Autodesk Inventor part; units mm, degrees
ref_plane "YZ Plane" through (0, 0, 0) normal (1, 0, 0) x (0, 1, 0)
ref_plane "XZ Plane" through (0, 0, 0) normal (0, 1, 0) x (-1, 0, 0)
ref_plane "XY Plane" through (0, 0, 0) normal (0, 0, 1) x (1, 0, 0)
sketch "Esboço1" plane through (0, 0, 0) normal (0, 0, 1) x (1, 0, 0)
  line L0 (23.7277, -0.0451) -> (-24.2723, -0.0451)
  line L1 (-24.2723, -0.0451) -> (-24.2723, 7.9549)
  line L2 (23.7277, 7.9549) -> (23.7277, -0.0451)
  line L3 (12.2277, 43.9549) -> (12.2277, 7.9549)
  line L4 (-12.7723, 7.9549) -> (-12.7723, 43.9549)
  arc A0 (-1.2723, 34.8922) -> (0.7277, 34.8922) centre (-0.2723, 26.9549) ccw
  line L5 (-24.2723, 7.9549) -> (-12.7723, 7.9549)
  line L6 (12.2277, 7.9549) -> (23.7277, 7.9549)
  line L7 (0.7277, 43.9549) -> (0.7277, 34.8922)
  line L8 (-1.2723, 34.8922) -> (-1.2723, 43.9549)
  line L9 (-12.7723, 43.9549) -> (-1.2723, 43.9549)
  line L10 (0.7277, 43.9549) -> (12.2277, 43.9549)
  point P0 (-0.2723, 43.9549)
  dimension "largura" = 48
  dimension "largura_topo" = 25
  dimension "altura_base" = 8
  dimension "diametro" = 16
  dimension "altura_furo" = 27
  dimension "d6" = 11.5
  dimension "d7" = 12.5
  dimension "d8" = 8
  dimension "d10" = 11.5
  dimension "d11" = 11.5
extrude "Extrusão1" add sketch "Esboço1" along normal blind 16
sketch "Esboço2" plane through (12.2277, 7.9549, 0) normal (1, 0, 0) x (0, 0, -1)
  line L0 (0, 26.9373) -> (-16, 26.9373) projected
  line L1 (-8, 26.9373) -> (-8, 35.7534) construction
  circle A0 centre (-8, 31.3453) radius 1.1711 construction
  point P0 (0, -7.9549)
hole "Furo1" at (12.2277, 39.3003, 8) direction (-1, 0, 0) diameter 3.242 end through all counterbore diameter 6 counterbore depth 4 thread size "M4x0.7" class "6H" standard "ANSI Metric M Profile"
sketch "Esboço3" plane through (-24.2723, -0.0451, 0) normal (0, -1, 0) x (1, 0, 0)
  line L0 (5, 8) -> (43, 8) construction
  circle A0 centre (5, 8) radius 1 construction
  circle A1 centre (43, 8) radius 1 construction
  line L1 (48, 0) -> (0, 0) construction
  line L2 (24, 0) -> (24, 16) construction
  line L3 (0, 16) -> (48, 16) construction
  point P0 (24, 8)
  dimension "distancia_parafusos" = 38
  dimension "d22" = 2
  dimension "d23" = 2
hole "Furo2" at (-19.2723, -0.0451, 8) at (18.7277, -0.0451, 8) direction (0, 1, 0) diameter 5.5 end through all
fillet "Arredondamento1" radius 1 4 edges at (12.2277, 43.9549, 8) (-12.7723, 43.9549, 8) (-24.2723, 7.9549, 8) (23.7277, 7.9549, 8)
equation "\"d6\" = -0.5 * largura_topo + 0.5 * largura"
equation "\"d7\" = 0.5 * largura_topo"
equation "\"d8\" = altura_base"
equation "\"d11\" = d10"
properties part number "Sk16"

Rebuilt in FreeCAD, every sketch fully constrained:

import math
import FreeCAD as App
import Part
import Sketcher

V = App.Vector


def edges_at(feature, points):
    """Names of the edges that pass closest to the given points."""
    edges = feature.Shape.Edges
    near = lambda p: min(range(len(edges)), key=lambda i: edges[i].distToShape(Part.Vertex(*p))[0])
    return sorted({f"Edge{near(p) + 1}" for p in points})

doc = App.newDocument("Part")
body = doc.addObject("PartDesign::Body", "Body")

# Sketch on XY plane
sketch1 = body.newObject("Sketcher::SketchObject", "Sketch")
sketch1.AttachmentSupport = (doc.getObject("XY_Plane"), [""])
sketch1.MapMode = "FlatFace"
sketch1.addGeometry(Part.LineSegment(V(-24.3, 0, 0), V(23.7, 0, 0)), False)
sketch1.addGeometry(Part.LineSegment(V(23.7, 0, 0), V(23.7, 8, 0)), False)
sketch1.addGeometry(Part.LineSegment(V(23.7, 8, 0), V(12.2, 8, 0)), False)
sketch1.addGeometry(Part.LineSegment(V(12.2, 8, 0), V(12.2, 44, 0)), False)
sketch1.addGeometry(Part.LineSegment(V(12.2, 44, 0), V(0.7, 44, 0)), False)
sketch1.addGeometry(Part.LineSegment(V(0.7, 44, 0), V(0.7, 34.9, 0)), False)
sketch1.addGeometry(Part.ArcOfCircle(Part.Circle(V(-0.3, 27, 0), V(0, 0, 1), 8), math.radians(97), math.radians(443)), False)
sketch1.addGeometry(Part.LineSegment(V(-1.3, 34.9, 0), V(-1.3, 44, 0)), False)
sketch1.addGeometry(Part.LineSegment(V(-1.3, 44, 0), V(-12.8, 44, 0)), False)
sketch1.addGeometry(Part.LineSegment(V(-12.8, 44, 0), V(-12.8, 8, 0)), False)
sketch1.addGeometry(Part.LineSegment(V(-12.8, 8, 0), V(-24.3, 8, 0)), False)
sketch1.addGeometry(Part.LineSegment(V(-24.3, 8, 0), V(-24.3, 0, 0)), False)
sketch1.addConstraint(Sketcher.Constraint("Coincident", 0, 2, 1, 1))
sketch1.addConstraint(Sketcher.Constraint("Coincident", 1, 2, 2, 1))
sketch1.addConstraint(Sketcher.Constraint("Coincident", 2, 2, 3, 1))
sketch1.addConstraint(Sketcher.Constraint("Coincident", 3, 2, 4, 1))
sketch1.addConstraint(Sketcher.Constraint("Coincident", 4, 2, 5, 1))
sketch1.addConstraint(Sketcher.Constraint("Coincident", 5, 2, 6, 2))
sketch1.addConstraint(Sketcher.Constraint("Coincident", 6, 1, 7, 1))
sketch1.addConstraint(Sketcher.Constraint("Coincident", 7, 2, 8, 1))
sketch1.addConstraint(Sketcher.Constraint("Coincident", 8, 2, 9, 1))
sketch1.addConstraint(Sketcher.Constraint("Coincident", 9, 2, 10, 1))
sketch1.addConstraint(Sketcher.Constraint("Coincident", 10, 2, 11, 1))
sketch1.addConstraint(Sketcher.Constraint("Coincident", 11, 2, 0, 1))
sketch1.addConstraint(Sketcher.Constraint("Horizontal", 0))
sketch1.addConstraint(Sketcher.Constraint("Vertical", 1))
sketch1.addConstraint(Sketcher.Constraint("Horizontal", 2))
sketch1.addConstraint(Sketcher.Constraint("Vertical", 3))
sketch1.addConstraint(Sketcher.Constraint("Horizontal", 4))
sketch1.addConstraint(Sketcher.Constraint("Vertical", 5))
sketch1.addConstraint(Sketcher.Constraint("Vertical", 7))
sketch1.addConstraint(Sketcher.Constraint("Horizontal", 8))
sketch1.addConstraint(Sketcher.Constraint("Vertical", 9))
sketch1.addConstraint(Sketcher.Constraint("Horizontal", 10))
sketch1.addConstraint(Sketcher.Constraint("Vertical", 11))
sketch1.addConstraint(Sketcher.Constraint("Horizontal", 5, 2, 6, 1))
sketch1.addConstraint(Sketcher.Constraint("Horizontal", 4, 2, 7, 2))
sketch1.addConstraint(Sketcher.Constraint("Horizontal", 2, 2, 9, 2))
sketch1.addConstraint(Sketcher.Constraint("Equal", 2, 4))
sketch1.addConstraint(Sketcher.Constraint("Equal", 4, 8))
sketch1.addConstraint(Sketcher.Constraint("Equal", 8, 10))
sketch1.addConstraint(Sketcher.Constraint("Radius", 6, 8.0))
sketch1.addConstraint(Sketcher.Constraint("DistanceX", 0, 1, 0, 2, 48.0))
sketch1.addConstraint(Sketcher.Constraint("DistanceY", 1, 1, 1, 2, 8.0))
sketch1.addConstraint(Sketcher.Constraint("DistanceX", 2, 2, 2, 1, 11.5))
sketch1.addConstraint(Sketcher.Constraint("DistanceY", 0, 2, 6, 3, 27.0))
sketch1.addConstraint(Sketcher.Constraint("DistanceY", 3, 1, 3, 2, 36.0))
sketch1.addConstraint(Sketcher.Constraint("DistanceY", -1, 1, 6, 3, 26.955))
sketch1.addConstraint(Sketcher.Constraint("DistanceX", 6, 3, -1, 1, 0.2723))
pad1 = body.newObject("PartDesign::Pad", "Pad")
pad1.Profile = sketch1
pad1.Length = 16

# Sketch on YZ plane
sketch2 = body.newObject("Sketcher::SketchObject", "Sketch001")
sketch2.AttachmentSupport = (doc.getObject("YZ_Plane"), [""])
sketch2.MapMode = "FlatFace"
sketch2.AttachmentOffset = App.Placement(V(0, 0, 12.2277), App.Rotation())
sketch2.addGeometry(Part.Circle(V(39.3, 8, 0), V(0, 0, 1), 1.6), False)
sketch2.addConstraint(Sketcher.Constraint("Diameter", 0, 3.242))
sketch2.addConstraint(Sketcher.Constraint("DistanceY", -1, 1, 0, 3, 8.0))
sketch2.addConstraint(Sketcher.Constraint("DistanceX", -1, 1, 0, 3, 39.3003))
doc.recompute()
hole = body.newObject("PartDesign::Hole", "Hole")
hole.Profile = sketch2
hole.ThreadType = "None"
hole.Diameter = 3.242
hole.DepthType = "ThroughAll"
hole.HoleCutType = "Counterbore"
hole.HoleCutDiameter = 6
hole.HoleCutDepth = 4

# Sketch on XZ plane
sketch3 = body.newObject("Sketcher::SketchObject", "Sketch002")
sketch3.AttachmentSupport = (doc.getObject("XZ_Plane"), [""])
sketch3.MapMode = "FlatFace"
sketch3.AttachmentOffset = App.Placement(V(0, 0, 0.0451), App.Rotation())
sketch3.addGeometry(Part.Circle(V(-19.3, 8, 0), V(0, 0, 1), 2.8), False)
sketch3.addGeometry(Part.Circle(V(18.7, 8, 0), V(0, 0, 1), 2.8), False)
sketch3.addConstraint(Sketcher.Constraint("Equal", 0, 1))
sketch3.addConstraint(Sketcher.Constraint("Horizontal", 0, 3, 1, 3))
sketch3.addConstraint(Sketcher.Constraint("Diameter", 0, 5.5))
sketch3.addConstraint(Sketcher.Constraint("DistanceY", -1, 1, 0, 3, 8.0))
sketch3.addConstraint(Sketcher.Constraint("DistanceX", 0, 3, 1, 3, 38.0))
sketch3.addConstraint(Sketcher.Constraint("DistanceX", 0, 3, -1, 1, 19.2723))
doc.recompute()
hole2 = body.newObject("PartDesign::Hole", "Hole001")
hole2.Profile = sketch3
hole2.ThreadType = "None"
hole2.Diameter = 5.5
hole2.DepthType = "ThroughAll"
doc.recompute()

fillet = body.newObject("PartDesign::Fillet", "Fillet")
fillet.Base = (hole2, edges_at(hole2, [
    (12.228, 43.955, 8),
    (-12.772, 43.955, 8),
    (-24.272, 7.955, 8),
    (23.728, 7.955, 8),
]))
fillet.Radius = 1

doc.recompute()
